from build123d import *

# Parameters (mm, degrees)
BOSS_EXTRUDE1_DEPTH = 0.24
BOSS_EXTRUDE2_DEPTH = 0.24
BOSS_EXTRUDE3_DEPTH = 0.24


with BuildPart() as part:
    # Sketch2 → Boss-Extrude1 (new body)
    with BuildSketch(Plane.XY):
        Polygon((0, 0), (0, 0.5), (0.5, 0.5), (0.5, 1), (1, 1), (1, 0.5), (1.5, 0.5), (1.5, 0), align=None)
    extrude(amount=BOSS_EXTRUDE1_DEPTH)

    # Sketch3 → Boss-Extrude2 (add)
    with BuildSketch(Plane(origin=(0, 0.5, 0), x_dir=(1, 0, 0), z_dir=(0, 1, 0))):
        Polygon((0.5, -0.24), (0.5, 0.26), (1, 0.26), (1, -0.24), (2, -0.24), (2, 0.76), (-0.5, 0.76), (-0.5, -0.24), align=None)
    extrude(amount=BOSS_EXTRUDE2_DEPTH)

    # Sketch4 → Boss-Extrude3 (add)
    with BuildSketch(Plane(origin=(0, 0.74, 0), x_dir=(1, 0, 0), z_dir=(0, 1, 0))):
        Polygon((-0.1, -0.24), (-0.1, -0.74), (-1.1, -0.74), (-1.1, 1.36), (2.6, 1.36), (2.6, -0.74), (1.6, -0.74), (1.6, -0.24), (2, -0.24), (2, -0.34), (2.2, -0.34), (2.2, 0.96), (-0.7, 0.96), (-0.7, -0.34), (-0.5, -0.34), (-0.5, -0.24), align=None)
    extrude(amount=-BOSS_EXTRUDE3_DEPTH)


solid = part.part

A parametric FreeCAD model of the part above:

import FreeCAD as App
import Part
import Sketcher

V = App.Vector


def add_polygon(sketch, points):
    """Adds a closed chain of lines whose ends are joined by coincident constraints."""
    first, n = sketch.GeometryCount, len(points)
    for a, b in zip(points, points[1:] + points[:1]):
        sketch.addGeometry(Part.LineSegment(App.Vector(*a, 0), App.Vector(*b, 0)), False)
    for i in range(n):
        sketch.addConstraint(Sketcher.Constraint("Coincident", first + i, 2, first + (i + 1) % n, 1))

doc = App.newDocument("Part")
body = doc.addObject("PartDesign::Body", "Body")

# Sketch on XY plane
sketch1 = doc.addObject("Sketcher::SketchObject", "Sketch")
body.addObject(sketch1)
sketch1.AttachmentSupport = (doc.XY_Plane, [""])
sketch1.MapMode = "FlatFace"
add_polygon(sketch1, [(0, 0.5), (0, 0), (1.5, 0), (1.5, 0.5), (1, 0.5), (1, 1), (0.5, 1), (0.5, 0.5)])  # lines 0-7
sketch1.addConstraint(Sketcher.Constraint("Vertical", 0))
sketch1.addConstraint(Sketcher.Constraint("Horizontal", 1))
sketch1.addConstraint(Sketcher.Constraint("Vertical", 2))
sketch1.addConstraint(Sketcher.Constraint("Horizontal", 3))
sketch1.addConstraint(Sketcher.Constraint("Vertical", 4))
sketch1.addConstraint(Sketcher.Constraint("Horizontal", 5))
sketch1.addConstraint(Sketcher.Constraint("Vertical", 6))
sketch1.addConstraint(Sketcher.Constraint("Horizontal", 7))
sketch1.addConstraint(Sketcher.Constraint("Coincident", 0, 2, -1, 1))
sketch1.addConstraint(Sketcher.Constraint("Horizontal", 3, 2, 6, 2))
sketch1.addConstraint(Sketcher.Constraint("Equal", 3, 5))
sketch1.addConstraint(Sketcher.Constraint("Equal", 5, 7))
sketch1.addConstraint(Sketcher.Constraint("Equal", 7, 0))
sketch1.addConstraint(Sketcher.Constraint("Equal", 2, 4))
sketch1.addConstraint(Sketcher.Constraint("DistanceX", 1, 1, 1, 2, 1.5))
pad1 = doc.addObject("PartDesign::Pad", "Pad")
body.addObject(pad1)
pad1.Profile = sketch1
pad1.Length = 0.24

# Sketch on XZ plane
sketch2 = doc.addObject("Sketcher::SketchObject", "Sketch001")
body.addObject(sketch2)
sketch2.AttachmentSupport = (doc.XZ_Plane, [""])
sketch2.MapMode = "FlatFace"
sketch2.AttachmentOffset = App.Placement(V(0, 0, -0.5), App.Rotation())
add_polygon(sketch2, [(0.5, 0.24), (0.5, -0.26), (1, -0.26), (1, 0.24), (2, 0.24), (2, -0.76), (-0.5, -0.76), (-0.5, 0.24)])  # lines 0-7
sketch2.addConstraint(Sketcher.Constraint("Vertical", 0))
sketch2.addConstraint(Sketcher.Constraint("Horizontal", 1))
sketch2.addConstraint(Sketcher.Constraint("Vertical", 2))
sketch2.addConstraint(Sketcher.Constraint("Horizontal", 3))
sketch2.addConstraint(Sketcher.Constraint("Vertical", 4))
sketch2.addConstraint(Sketcher.Constraint("Horizontal", 5))
sketch2.addConstraint(Sketcher.Constraint("Vertical", 6))
sketch2.addConstraint(Sketcher.Constraint("Horizontal", 7))
sketch2.addConstraint(Sketcher.Constraint("Horizontal", 3, 2, 6, 2))
sketch2.addConstraint(Sketcher.Constraint("Equal", 3, 7))
sketch2.addConstraint(Sketcher.Constraint("Equal", 1, 0))
sketch2.addConstraint(Sketcher.Constraint("Equal", 7, 4))
sketch2.addConstraint(Sketcher.Constraint("DistanceX", 3, 1, 3, 2, 1.0))
sketch2.addConstraint(Sketcher.Constraint("DistanceX", 1, 1, 1, 2, 0.5))
sketch2.addConstraint(Sketcher.Constraint("DistanceX", -1, 1, 1, 2, 1.0))
sketch2.addConstraint(Sketcher.Constraint("DistanceY", 0, 2, -1, 1, 0.26))
pad2 = doc.addObject("PartDesign::Pad", "Pad001")
body.addObject(pad2)
pad2.Profile = sketch2
pad2.Length = 0.24
pad2.Reversed = True

# Sketch on XZ plane
sketch3 = doc.addObject("Sketcher::SketchObject", "Sketch002")
body.addObject(sketch3)
sketch3.AttachmentSupport = (doc.XZ_Plane, [""])
sketch3.MapMode = "FlatFace"
sketch3.AttachmentOffset = App.Placement(V(0, 0, -0.74), App.Rotation())
add_polygon(sketch3, [(-0.1, 0.74), (-0.1, 0.24), (-0.5, 0.24), (-0.5, 0.34), (-0.7, 0.34), (-0.7, -0.96), (2.2, -0.96), (2.2, 0.34), (2, 0.34), (2, 0.24), (1.6, 0.24), (1.6, 0.74), (2.6, 0.74), (2.6, -1.36), (-1.1, -1.36), (-1.1, 0.74)])  # lines 0-15
sketch3.addConstraint(Sketcher.Constraint("Vertical", 0))
sketch3.addConstraint(Sketcher.Constraint("Horizontal", 1))
sketch3.addConstraint(Sketcher.Constraint("Vertical", 2))
sketch3.addConstraint(Sketcher.Constraint("Horizontal", 3))
sketch3.addConstraint(Sketcher.Constraint("Vertical", 4))
sketch3.addConstraint(Sketcher.Constraint("Horizontal", 5))
sketch3.addConstraint(Sketcher.Constraint("Vertical", 6))
sketch3.addConstraint(Sketcher.Constraint("Horizontal", 7))
sketch3.addConstraint(Sketcher.Constraint("Vertical", 8))
sketch3.addConstraint(Sketcher.Constraint("Horizontal", 9))
sketch3.addConstraint(Sketcher.Constraint("Vertical", 10))
sketch3.addConstraint(Sketcher.Constraint("Horizontal", 11))
sketch3.addConstraint(Sketcher.Constraint("Vertical", 12))
sketch3.addConstraint(Sketcher.Constraint("Horizontal", 13))
sketch3.addConstraint(Sketcher.Constraint("Vertical", 14))
sketch3.addConstraint(Sketcher.Constraint("Horizontal", 15))
sketch3.addConstraint(Sketcher.Constraint("Horizontal", 3, 2, 6, 2))
sketch3.addConstraint(Sketcher.Constraint("Horizontal", 1, 2, 8, 2))
sketch3.addConstraint(Sketcher.Constraint("Horizontal", 11, 2, 14, 2))
sketch3.addConstraint(Sketcher.Constraint("Equal", 3, 7))
sketch3.addConstraint(Sketcher.Constraint("Equal", 1, 9))
sketch3.addConstraint(Sketcher.Constraint("Equal", 11, 15))
sketch3.addConstraint(Sketcher.Constraint("DistanceX", 11, 1, 11, 2, 1.0))
sketch3.addConstraint(Sketcher.Constraint("DistanceX", 1, 2, 1, 1, 0.4))
sketch3.addConstraint(Sketcher.Constraint("DistanceX", 3, 2, 3, 1, 0.2))
sketch3.addConstraint(Sketcher.Constraint("DistanceX", 5, 1, 5, 2, 2.9))
sketch3.addConstraint(Sketcher.Constraint("DistanceY", 0, 2, 0, 1, 0.5))
sketch3.addConstraint(Sketcher.Constraint("DistanceY", 2, 1, 2, 2, 0.1))
sketch3.addConstraint(Sketcher.Constraint("DistanceY", 4, 2, 4, 1, 1.3))
sketch3.addConstraint(Sketcher.Constraint("DistanceY", 12, 2, 12, 1, 2.1))
sketch3.addConstraint(Sketcher.Constraint("DistanceX", -1, 1, 7, 2, 2.0))
sketch3.addConstraint(Sketcher.Constraint("DistanceY", -1, 1, 0, 2, 0.24))
pad3 = doc.addObject("PartDesign::Pad", "Pad002")
body.addObject(pad3)
pad3.Profile = sketch3
pad3.Length = 0.24

doc.recompute()
